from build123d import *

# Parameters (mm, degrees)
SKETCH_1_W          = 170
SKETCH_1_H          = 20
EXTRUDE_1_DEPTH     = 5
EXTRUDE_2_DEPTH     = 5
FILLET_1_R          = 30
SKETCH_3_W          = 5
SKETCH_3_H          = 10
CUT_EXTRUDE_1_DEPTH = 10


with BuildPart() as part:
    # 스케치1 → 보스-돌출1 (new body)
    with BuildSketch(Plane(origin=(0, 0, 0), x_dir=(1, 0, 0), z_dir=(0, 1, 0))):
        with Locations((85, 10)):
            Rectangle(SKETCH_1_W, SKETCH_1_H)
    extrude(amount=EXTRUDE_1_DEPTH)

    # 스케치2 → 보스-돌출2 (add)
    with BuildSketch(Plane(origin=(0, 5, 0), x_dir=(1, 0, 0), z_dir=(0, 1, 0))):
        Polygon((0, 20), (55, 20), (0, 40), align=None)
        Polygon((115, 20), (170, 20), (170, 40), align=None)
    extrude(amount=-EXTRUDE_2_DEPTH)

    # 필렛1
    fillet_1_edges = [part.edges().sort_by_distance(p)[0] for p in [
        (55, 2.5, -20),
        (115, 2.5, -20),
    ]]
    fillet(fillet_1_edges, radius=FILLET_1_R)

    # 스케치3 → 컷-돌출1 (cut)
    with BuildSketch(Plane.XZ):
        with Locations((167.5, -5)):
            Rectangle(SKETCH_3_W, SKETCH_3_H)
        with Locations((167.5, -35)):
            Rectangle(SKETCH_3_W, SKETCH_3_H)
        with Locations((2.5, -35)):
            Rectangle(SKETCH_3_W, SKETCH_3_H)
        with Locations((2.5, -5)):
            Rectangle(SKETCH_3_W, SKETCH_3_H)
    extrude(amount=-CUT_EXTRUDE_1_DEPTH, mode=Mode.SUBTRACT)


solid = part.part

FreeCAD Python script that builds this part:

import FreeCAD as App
import Part
import Sketcher
Q = App.Units.Quantity


def edges_at(feature, points):
    """Names of the edges that pass closest to the given points."""
    edges = feature.Shape.Edges
    near = lambda p: min(range(len(edges)), key=lambda i: edges[i].distToShape(Part.Vertex(*p))[0])
    return sorted({f"Edge{near(p) + 1}" for p in points})


def add_polygon(sketch, points):
    """Adds a closed chain of lines whose ends are joined by coincident constraints."""
    first, n = sketch.GeometryCount, len(points)
    for a, b in zip(points, points[1:] + points[:1]):
        sketch.addGeometry(Part.LineSegment(App.Vector(*a, 0), App.Vector(*b, 0)), False)
    for i in range(n):
        sketch.addConstraint(Sketcher.Constraint("Coincident", first + i, 2, first + (i + 1) % n, 1))

doc = App.newDocument("Part")
body = doc.addObject("PartDesign::Body", "Body")

sketch1 = doc.addObject("Sketcher::SketchObject", "Sketch")
body.addObject(sketch1)
sketch1.AttachmentSupport = (doc.XZ_Plane, [""])
sketch1.MapMode = "FlatFace"
add_polygon(sketch1, [(0, -20), (0, 0), (170, 0), (170, -20)])
sketch1.addConstraint([
    Sketcher.Constraint("Vertical", 0),
    Sketcher.Constraint("Horizontal", 1),
    Sketcher.Constraint("Vertical", 2),
    Sketcher.Constraint("Horizontal", 3),
    Sketcher.Constraint("Coincident", 0, 2, -1, 1),
    Sketcher.Constraint("DistanceX", 1, 1, 1, 2, Q("170 mm")),
    Sketcher.Constraint("DistanceY", 0, 1, 0, 2, Q("20 mm")),
])
pad1 = doc.addObject("PartDesign::Pad", "Pad")
body.addObject(pad1)
pad1.Profile = sketch1
pad1.Length = 5
pad1.Reversed = True

sketch2 = doc.addObject("Sketcher::SketchObject", "Sketch001")
body.addObject(sketch2)
sketch2.AttachmentSupport = (doc.XZ_Plane, [""])
sketch2.MapMode = "FlatFace"
sketch2.AttachmentOffset = App.Placement(App.Vector(0, 0, -5), App.Rotation())
add_polygon(sketch2, [(0, -20), (55, -20), (0, -40)])
add_polygon(sketch2, [(115, -20), (170, -20), (170, -40)])
sketch2.addConstraint([
    Sketcher.Constraint("Horizontal", 0),
    Sketcher.Constraint("Vertical", 2),
    Sketcher.Constraint("Horizontal", 3),
    Sketcher.Constraint("Vertical", 4),
    Sketcher.Constraint("PointOnObject", 1, 2, -2),
    Sketcher.Constraint("Horizontal", 2, 2, 3, 2),
    Sketcher.Constraint("Horizontal", 1, 2, 4, 2),
    Sketcher.Constraint("Equal", 0, 3),
    Sketcher.Constraint("DistanceX", 0, 1, 0, 2, Q("55 mm")),
    Sketcher.Constraint("DistanceY", 2, 1, 2, 2, Q("20 mm")),
    Sketcher.Constraint("DistanceY", 0, 2, -1, 1, Q("20 mm")),
    Sketcher.Constraint("DistanceX", -1, 1, 3, 2, Q("170 mm")),
])
pad2 = doc.addObject("PartDesign::Pad", "Pad001")
body.addObject(pad2)
pad2.Profile = sketch2
pad2.Length = 5
doc.recompute()

fillet = doc.addObject("PartDesign::Fillet", "Fillet")
body.addObject(fillet)
fillet.Base = (pad2, edges_at(pad2, [(55, 2.5, -20), (115, 2.5, -20)]))
fillet.Radius = 30

sketch3 = doc.addObject("Sketcher::SketchObject", "Sketch002")
body.addObject(sketch3)
sketch3.AttachmentSupport = (doc.XZ_Plane, [""])
sketch3.MapMode = "FlatFace"
add_polygon(sketch3, [(165, 0), (165, -10), (170, -10), (170, 0)])
add_polygon(sketch3, [(165, -30), (165, -40), (170, -40), (170, -30)])
add_polygon(sketch3, [(0, -30), (0, -40), (5, -40), (5, -30)])
add_polygon(sketch3, [(0, 0), (0, -10), (5, -10), (5, 0)])
sketch3.addConstraint([
    Sketcher.Constraint("Vertical", 0),
    Sketcher.Constraint("Horizontal", 1),
    Sketcher.Constraint("Vertical", 2),
    Sketcher.Constraint("Horizontal", 3),
    Sketcher.Constraint("Vertical", 4),
    Sketcher.Constraint("Horizontal", 5),
    Sketcher.Constraint("Vertical", 6),
    Sketcher.Constraint("Horizontal", 7),
    Sketcher.Constraint("Vertical", 8),
    Sketcher.Constraint("Horizontal", 9),
    Sketcher.Constraint("Vertical", 10),
    Sketcher.Constraint("Horizontal", 11),
    Sketcher.Constraint("Vertical", 12),
    Sketcher.Constraint("Horizontal", 13),
    Sketcher.Constraint("Vertical", 14),
    Sketcher.Constraint("Horizontal", 15),
    Sketcher.Constraint("Coincident", 15, 2, -1, 1),
    Sketcher.Constraint("PointOnObject", 2, 2, -1),
    Sketcher.Constraint("PointOnObject", 8, 2, -2),
    Sketcher.Constraint("Horizontal", 5, 2, 8, 2),
    Sketcher.Constraint("Horizontal", 7, 2, 10, 2),
    Sketcher.Constraint("Horizontal", 1, 2, 12, 2),
    Sketcher.Constraint("Vertical", 3, 2, 4, 2),
    Sketcher.Constraint("Vertical", 2, 2, 5, 2),
    Sketcher.Constraint("Vertical", 10, 2, 13, 2),
    Sketcher.Constraint("Equal", 7, 9),
    Sketcher.Constraint("Equal", 2, 4),
    Sketcher.Constraint("DistanceX", 1, 1, 1, 2, Q("5 mm")),
    Sketcher.Constraint("DistanceY", 0, 2, 0, 1, Q("10 mm")),
    Sketcher.Constraint("DistanceX", -1, 1, 0, 2, Q("165 mm")),
    Sketcher.Constraint("DistanceY", 4, 2, -1, 1, Q("40 mm")),
])
pocket1 = doc.addObject("PartDesign::Pocket", "Pocket")
body.addObject(pocket1)
pocket1.Profile = sketch3
pocket1.Length = 10

doc.recompute()
